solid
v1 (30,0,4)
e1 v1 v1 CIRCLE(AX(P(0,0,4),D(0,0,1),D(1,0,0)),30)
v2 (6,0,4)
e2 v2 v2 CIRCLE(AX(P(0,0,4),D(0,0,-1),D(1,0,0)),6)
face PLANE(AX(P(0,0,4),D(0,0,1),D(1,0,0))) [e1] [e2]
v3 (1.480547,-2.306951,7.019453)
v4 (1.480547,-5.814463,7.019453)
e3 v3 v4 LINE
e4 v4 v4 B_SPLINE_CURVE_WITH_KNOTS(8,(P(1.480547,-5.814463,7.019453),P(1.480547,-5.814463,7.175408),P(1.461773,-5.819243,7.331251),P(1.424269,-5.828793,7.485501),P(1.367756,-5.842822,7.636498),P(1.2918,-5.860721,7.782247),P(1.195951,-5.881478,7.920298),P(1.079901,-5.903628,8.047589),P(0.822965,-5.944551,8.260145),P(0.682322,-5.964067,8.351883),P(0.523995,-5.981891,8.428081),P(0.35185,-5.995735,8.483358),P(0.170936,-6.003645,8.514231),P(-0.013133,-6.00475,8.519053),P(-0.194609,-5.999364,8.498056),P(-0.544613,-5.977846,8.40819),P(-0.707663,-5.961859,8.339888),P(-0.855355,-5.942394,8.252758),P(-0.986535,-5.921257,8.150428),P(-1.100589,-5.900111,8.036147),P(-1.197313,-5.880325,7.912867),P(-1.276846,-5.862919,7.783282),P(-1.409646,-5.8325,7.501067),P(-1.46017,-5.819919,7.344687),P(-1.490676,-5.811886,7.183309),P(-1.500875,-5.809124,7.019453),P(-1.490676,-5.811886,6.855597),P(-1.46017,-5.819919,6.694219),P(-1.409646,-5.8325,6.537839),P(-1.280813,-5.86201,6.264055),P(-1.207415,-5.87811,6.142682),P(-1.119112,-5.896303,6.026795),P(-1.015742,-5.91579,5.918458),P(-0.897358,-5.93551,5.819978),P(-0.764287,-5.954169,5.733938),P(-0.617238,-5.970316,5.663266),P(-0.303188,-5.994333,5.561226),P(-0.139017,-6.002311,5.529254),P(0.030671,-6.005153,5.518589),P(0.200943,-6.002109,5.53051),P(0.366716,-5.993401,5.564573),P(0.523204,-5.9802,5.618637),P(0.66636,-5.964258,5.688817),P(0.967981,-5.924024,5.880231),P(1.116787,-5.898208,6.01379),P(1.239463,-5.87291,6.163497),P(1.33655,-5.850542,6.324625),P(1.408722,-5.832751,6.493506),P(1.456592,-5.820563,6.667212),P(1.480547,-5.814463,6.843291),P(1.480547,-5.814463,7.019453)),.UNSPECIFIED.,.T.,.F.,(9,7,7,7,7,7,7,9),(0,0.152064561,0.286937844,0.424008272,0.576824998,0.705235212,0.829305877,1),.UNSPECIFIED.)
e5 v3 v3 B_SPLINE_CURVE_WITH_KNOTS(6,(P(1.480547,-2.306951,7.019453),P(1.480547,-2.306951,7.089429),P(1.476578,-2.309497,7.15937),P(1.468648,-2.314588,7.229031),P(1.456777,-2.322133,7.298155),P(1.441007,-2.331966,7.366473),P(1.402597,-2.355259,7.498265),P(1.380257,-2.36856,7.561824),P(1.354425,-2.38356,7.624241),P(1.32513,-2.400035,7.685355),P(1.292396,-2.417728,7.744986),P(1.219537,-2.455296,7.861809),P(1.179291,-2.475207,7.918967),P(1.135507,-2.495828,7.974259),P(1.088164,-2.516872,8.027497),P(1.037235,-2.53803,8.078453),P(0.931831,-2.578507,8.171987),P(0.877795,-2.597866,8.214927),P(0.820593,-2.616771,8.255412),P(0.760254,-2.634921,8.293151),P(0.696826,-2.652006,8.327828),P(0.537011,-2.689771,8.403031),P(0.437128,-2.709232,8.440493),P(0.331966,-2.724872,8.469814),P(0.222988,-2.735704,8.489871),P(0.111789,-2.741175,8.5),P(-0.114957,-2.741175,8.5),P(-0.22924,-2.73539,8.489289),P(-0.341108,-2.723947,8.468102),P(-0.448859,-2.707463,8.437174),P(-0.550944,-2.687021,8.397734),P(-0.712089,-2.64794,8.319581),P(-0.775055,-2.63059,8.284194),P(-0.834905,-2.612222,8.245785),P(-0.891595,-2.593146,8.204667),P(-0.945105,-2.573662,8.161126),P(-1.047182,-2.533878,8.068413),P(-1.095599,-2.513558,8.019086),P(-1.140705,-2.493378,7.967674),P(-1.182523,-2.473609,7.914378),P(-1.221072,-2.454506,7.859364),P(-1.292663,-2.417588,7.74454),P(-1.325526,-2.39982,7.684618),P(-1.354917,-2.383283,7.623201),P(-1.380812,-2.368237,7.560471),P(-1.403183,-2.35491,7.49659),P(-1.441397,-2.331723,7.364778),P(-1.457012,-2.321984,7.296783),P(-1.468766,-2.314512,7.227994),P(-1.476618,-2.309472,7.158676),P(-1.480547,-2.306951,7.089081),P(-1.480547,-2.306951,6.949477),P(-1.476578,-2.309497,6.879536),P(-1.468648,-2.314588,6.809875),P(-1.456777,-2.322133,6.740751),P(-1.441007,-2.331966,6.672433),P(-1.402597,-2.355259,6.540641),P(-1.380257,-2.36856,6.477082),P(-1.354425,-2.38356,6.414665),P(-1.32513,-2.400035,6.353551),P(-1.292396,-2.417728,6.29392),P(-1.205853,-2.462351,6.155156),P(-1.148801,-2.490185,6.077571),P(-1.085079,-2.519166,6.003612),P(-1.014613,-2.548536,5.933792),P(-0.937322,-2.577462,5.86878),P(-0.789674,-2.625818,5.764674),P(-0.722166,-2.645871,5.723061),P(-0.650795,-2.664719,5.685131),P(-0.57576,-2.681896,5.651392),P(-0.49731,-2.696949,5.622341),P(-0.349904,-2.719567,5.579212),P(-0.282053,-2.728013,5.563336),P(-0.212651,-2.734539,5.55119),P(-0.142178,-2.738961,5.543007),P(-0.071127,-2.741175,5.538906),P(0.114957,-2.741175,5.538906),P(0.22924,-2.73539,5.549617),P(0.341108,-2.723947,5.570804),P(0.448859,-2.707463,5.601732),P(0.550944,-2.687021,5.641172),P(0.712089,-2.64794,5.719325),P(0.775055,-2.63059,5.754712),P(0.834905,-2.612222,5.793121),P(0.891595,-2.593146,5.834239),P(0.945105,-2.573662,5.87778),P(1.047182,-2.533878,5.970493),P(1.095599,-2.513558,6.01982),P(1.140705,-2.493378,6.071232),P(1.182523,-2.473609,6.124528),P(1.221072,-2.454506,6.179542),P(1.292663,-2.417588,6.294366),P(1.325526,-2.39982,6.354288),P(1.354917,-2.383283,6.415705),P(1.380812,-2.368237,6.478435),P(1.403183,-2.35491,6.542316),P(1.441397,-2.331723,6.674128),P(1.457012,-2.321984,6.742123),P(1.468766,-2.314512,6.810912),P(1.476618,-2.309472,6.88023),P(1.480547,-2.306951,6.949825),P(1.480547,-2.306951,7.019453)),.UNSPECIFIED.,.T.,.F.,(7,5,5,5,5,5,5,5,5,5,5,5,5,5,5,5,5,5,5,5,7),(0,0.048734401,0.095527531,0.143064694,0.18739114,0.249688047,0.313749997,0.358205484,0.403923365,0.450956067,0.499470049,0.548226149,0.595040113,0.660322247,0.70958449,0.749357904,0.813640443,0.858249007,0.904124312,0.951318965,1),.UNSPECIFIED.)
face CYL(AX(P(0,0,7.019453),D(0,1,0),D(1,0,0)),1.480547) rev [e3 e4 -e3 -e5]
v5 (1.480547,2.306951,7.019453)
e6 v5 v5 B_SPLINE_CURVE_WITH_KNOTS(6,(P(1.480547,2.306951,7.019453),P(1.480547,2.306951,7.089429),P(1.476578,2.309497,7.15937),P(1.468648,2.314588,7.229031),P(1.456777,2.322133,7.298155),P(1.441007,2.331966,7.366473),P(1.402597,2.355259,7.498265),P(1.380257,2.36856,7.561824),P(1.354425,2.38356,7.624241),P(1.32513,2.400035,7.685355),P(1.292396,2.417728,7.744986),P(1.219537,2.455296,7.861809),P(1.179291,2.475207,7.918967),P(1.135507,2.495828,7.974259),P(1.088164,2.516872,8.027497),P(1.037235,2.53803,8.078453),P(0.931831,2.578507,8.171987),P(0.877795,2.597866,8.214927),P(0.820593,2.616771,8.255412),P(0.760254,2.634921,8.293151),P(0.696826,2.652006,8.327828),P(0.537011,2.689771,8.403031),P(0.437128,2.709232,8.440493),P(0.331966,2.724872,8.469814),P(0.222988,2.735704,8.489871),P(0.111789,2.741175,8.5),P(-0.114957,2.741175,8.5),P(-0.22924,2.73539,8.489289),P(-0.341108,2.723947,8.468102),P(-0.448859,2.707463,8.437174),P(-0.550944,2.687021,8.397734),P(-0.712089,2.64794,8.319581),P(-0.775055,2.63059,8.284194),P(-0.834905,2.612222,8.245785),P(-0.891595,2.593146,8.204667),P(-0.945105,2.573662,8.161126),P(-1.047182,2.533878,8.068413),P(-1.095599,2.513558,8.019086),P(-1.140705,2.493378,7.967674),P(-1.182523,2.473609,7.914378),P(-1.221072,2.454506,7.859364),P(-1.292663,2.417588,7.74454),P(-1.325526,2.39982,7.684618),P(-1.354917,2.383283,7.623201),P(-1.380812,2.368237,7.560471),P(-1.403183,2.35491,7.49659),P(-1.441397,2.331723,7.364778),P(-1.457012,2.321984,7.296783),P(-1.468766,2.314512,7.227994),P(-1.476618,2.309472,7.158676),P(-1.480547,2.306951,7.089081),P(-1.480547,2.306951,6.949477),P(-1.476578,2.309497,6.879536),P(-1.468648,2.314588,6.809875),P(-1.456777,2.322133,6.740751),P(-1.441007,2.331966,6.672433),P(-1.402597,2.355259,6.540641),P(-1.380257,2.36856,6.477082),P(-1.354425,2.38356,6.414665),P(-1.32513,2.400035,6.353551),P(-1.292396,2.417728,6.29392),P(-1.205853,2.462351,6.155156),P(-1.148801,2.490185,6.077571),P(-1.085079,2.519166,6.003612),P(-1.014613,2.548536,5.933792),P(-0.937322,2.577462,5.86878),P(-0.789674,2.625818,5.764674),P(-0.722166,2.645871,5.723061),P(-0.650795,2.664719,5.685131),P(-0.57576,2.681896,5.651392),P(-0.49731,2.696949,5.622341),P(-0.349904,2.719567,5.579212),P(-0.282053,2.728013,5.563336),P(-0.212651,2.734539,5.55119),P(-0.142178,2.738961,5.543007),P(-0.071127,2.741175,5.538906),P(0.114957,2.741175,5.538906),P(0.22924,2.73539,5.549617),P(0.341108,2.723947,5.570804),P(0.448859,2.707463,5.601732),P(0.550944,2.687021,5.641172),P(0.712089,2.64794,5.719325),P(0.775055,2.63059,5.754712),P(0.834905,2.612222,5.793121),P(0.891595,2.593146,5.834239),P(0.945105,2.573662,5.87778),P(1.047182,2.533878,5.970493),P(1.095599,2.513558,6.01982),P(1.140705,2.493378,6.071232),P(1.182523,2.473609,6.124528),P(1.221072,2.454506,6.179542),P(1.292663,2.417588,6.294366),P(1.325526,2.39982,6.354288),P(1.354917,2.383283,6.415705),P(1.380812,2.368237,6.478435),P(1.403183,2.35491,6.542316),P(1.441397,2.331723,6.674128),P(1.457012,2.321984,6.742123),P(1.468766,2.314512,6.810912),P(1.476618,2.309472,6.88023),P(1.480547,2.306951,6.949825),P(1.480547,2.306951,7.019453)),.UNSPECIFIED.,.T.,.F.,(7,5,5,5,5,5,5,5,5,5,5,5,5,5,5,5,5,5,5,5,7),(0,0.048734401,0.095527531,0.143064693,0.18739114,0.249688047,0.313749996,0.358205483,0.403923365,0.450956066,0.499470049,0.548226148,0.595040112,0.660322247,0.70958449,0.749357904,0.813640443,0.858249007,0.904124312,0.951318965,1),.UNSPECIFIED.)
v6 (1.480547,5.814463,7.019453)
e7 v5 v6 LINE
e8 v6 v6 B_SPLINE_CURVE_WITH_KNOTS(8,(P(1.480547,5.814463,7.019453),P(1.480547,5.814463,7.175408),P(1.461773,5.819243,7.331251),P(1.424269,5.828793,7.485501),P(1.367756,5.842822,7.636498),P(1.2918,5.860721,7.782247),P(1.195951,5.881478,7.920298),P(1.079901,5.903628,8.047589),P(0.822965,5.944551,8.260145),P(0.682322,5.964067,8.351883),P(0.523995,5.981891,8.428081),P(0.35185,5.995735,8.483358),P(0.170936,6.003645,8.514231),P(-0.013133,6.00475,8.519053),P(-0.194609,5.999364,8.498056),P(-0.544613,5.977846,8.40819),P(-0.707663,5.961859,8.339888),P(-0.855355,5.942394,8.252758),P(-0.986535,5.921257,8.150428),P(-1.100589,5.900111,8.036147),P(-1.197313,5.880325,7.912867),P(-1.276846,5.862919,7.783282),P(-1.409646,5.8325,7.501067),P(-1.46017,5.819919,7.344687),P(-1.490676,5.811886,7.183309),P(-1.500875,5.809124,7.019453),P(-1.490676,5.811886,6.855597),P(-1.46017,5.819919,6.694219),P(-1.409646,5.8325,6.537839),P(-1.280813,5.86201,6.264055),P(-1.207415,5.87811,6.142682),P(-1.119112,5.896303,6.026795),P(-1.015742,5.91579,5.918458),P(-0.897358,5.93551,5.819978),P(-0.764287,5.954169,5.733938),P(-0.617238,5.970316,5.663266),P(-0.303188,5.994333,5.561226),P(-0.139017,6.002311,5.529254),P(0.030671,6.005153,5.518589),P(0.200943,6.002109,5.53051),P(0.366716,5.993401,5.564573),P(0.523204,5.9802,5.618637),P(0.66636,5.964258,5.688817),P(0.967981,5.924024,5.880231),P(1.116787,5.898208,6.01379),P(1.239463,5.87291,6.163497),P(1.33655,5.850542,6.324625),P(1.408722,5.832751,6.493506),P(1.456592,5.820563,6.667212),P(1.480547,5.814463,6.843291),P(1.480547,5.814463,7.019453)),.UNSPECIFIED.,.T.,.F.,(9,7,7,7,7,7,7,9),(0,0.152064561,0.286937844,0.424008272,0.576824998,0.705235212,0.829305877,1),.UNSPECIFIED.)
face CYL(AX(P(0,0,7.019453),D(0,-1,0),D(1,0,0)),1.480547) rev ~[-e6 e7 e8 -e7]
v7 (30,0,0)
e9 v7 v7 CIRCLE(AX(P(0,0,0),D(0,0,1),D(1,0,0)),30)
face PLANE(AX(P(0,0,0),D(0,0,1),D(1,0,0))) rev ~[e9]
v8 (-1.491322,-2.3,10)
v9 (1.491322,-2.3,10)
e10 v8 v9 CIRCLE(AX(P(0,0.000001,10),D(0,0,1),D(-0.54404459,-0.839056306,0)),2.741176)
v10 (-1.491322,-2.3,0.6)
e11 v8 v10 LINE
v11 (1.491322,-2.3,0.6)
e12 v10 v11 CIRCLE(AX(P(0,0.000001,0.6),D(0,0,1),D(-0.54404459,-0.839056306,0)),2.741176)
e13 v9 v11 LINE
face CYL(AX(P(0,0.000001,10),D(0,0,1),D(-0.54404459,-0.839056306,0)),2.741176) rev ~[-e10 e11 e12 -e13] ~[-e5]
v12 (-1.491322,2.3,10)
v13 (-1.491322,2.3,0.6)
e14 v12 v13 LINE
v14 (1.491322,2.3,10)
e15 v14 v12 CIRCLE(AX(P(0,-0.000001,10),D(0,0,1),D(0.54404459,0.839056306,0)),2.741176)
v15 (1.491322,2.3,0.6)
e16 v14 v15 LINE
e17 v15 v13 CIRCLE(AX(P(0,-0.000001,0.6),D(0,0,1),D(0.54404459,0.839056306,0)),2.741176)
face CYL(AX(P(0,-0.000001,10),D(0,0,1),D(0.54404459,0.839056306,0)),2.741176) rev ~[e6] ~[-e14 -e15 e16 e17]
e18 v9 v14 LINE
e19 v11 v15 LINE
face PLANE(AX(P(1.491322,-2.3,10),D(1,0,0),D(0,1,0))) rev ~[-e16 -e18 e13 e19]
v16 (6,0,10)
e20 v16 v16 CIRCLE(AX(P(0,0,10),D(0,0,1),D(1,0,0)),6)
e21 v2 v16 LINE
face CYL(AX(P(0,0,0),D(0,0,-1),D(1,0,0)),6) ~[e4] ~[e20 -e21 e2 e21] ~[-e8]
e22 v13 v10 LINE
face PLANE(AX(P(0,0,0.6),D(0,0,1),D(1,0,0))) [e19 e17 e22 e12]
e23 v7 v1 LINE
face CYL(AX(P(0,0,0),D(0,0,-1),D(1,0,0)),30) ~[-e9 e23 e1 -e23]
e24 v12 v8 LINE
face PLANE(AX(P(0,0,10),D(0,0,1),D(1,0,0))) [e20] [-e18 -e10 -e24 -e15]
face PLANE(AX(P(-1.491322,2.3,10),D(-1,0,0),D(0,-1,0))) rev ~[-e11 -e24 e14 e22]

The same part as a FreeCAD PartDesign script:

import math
import FreeCAD as App
import Part
import Sketcher

V = App.Vector
Q = App.Units.Quantity

doc = App.newDocument("Part")
params = doc.addObject("Spreadsheet::Sheet", "Params")
for row, (alias, value) in enumerate([
    ("sketch1_diameter", "60 mm"),
    ("pad1_length", "4 mm"),
    ("sketch2_diameter", "12 mm"),
    ("pad2_length", "10 mm"),
    ("sketch4_height", "4.6 mm"),
    ("pocket2_length", "9.4 mm"),
], start=1):
    params.set(f"A{row}", alias)
    params.set(f"B{row}", "=" + value)
    params.setAlias(f"B{row}", alias)

body = doc.addObject("PartDesign::Body", "Body")

sketch1 = doc.addObject("Sketcher::SketchObject", "Sketch")
body.addObject(sketch1)
sketch1.AttachmentSupport = (doc.XY_Plane, [""])
sketch1.MapMode = "FlatFace"
sketch1.addGeometry(Part.Circle(V(0, 0, 0), V(0, 0, 1), 30), False)
sketch1.addConstraint(Sketcher.Constraint("Coincident", 0, 3, -1, 1))
sketch1.addConstraint(Sketcher.Constraint("Diameter", 0, Q("60 mm")))
sketch1.setExpression("Constraints[1]", "Params.sketch1_diameter")
pad1 = doc.addObject("PartDesign::Pad", "Pad")
body.addObject(pad1)
pad1.Profile = sketch1
pad1.setExpression("Length", "Params.pad1_length")

sketch2 = doc.addObject("Sketcher::SketchObject", "Sketch001")
body.addObject(sketch2)
sketch2.AttachmentSupport = (doc.XY_Plane, [""])
sketch2.MapMode = "FlatFace"
sketch2.addGeometry(Part.Circle(V(0, 0, 0), V(0, 0, 1), 6), False)
sketch2.addConstraint(Sketcher.Constraint("Coincident", 0, 3, -1, 1))
sketch2.addConstraint(Sketcher.Constraint("Diameter", 0, Q("12 mm")))
sketch2.setExpression("Constraints[1]", "Params.sketch2_diameter")
pad2 = doc.addObject("PartDesign::Pad", "Pad001")
body.addObject(pad2)
pad2.Profile = sketch2
pad2.setExpression("Length", "Params.pad2_length")

sketch3 = doc.addObject("Sketcher::SketchObject", "Sketch002")
body.addObject(sketch3)
sketch3.AttachmentSupport = (doc.XZ_Plane, [""])
sketch3.MapMode = "FlatFace"
sketch3.addGeometry(Part.Circle(V(0, 7, 0), V(0, 0, 1), 1.5), False)
sketch3.addConstraint(Sketcher.Constraint("PointOnObject", 0, 3, -2))
sketch3.addConstraint(Sketcher.Constraint("Diameter", 0, Q("2.961094 mm")))
sketch3.addConstraint(Sketcher.Constraint("DistanceY", -1, 1, 0, 3, Q("7.019453 mm")))
pocket1 = doc.addObject("PartDesign::Pocket", "Pocket")
body.addObject(pocket1)
pocket1.Profile = sketch3
pocket1.Type = "ThroughAll"
pocket1.Midplane = True

sketch4 = doc.addObject("Sketcher::SketchObject", "Sketch003")
body.addObject(sketch4)
sketch4.AttachmentSupport = (doc.XY_Plane, [""])
sketch4.MapMode = "FlatFace"
sketch4.AttachmentOffset = App.Placement(V(0, 0, 10), App.Rotation())
sketch4.addGeometry(Part.LineSegment(V(-1.5, 2.3, 0), V(-1.5, -2.3, 0)), False)
sketch4.addGeometry(Part.ArcOfCircle(Part.Circle(V(0, 0, 0), V(0, 0, 1), 2.7), math.radians(-123), math.radians(-57)), False)
sketch4.addGeometry(Part.LineSegment(V(1.5, -2.3, 0), V(1.5, 2.3, 0)), False)
sketch4.addGeometry(Part.ArcOfCircle(Part.Circle(V(0, 0, 0), V(0, 0, 1), 2.7), math.radians(57), math.radians(123)), False)
sketch4.addConstraint(Sketcher.Constraint("Coincident", 0, 2, 1, 1))
sketch4.addConstraint(Sketcher.Constraint("Coincident", 1, 2, 2, 1))
sketch4.addConstraint(Sketcher.Constraint("Coincident", 2, 2, 3, 1))
sketch4.addConstraint(Sketcher.Constraint("Coincident", 3, 2, 0, 1))
sketch4.addConstraint(Sketcher.Constraint("Vertical", 0))
sketch4.addConstraint(Sketcher.Constraint("Vertical", 2))
sketch4.addConstraint(Sketcher.Constraint("Coincident", 1, 3, -1, 1))
sketch4.addConstraint(Sketcher.Constraint("Coincident", 3, 3, -1, 1))
sketch4.addConstraint(Sketcher.Constraint("Equal", 1, 3))
sketch4.addConstraint(Sketcher.Constraint("Horizontal", 0, 2, 1, 2))
sketch4.addConstraint(Sketcher.Constraint("DistanceY", 0, 2, 0, 1, Q("4.6 mm")))
sketch4.addConstraint(Sketcher.Constraint("Radius", 1, Q("2.741176 mm")))
sketch4.setExpression("Constraints[10]", "Params.sketch4_height")
pocket2 = doc.addObject("PartDesign::Pocket", "Pocket001")
body.addObject(pocket2)
pocket2.Profile = sketch4
pocket2.setExpression("Length", "Params.pocket2_length")

doc.recompute()
